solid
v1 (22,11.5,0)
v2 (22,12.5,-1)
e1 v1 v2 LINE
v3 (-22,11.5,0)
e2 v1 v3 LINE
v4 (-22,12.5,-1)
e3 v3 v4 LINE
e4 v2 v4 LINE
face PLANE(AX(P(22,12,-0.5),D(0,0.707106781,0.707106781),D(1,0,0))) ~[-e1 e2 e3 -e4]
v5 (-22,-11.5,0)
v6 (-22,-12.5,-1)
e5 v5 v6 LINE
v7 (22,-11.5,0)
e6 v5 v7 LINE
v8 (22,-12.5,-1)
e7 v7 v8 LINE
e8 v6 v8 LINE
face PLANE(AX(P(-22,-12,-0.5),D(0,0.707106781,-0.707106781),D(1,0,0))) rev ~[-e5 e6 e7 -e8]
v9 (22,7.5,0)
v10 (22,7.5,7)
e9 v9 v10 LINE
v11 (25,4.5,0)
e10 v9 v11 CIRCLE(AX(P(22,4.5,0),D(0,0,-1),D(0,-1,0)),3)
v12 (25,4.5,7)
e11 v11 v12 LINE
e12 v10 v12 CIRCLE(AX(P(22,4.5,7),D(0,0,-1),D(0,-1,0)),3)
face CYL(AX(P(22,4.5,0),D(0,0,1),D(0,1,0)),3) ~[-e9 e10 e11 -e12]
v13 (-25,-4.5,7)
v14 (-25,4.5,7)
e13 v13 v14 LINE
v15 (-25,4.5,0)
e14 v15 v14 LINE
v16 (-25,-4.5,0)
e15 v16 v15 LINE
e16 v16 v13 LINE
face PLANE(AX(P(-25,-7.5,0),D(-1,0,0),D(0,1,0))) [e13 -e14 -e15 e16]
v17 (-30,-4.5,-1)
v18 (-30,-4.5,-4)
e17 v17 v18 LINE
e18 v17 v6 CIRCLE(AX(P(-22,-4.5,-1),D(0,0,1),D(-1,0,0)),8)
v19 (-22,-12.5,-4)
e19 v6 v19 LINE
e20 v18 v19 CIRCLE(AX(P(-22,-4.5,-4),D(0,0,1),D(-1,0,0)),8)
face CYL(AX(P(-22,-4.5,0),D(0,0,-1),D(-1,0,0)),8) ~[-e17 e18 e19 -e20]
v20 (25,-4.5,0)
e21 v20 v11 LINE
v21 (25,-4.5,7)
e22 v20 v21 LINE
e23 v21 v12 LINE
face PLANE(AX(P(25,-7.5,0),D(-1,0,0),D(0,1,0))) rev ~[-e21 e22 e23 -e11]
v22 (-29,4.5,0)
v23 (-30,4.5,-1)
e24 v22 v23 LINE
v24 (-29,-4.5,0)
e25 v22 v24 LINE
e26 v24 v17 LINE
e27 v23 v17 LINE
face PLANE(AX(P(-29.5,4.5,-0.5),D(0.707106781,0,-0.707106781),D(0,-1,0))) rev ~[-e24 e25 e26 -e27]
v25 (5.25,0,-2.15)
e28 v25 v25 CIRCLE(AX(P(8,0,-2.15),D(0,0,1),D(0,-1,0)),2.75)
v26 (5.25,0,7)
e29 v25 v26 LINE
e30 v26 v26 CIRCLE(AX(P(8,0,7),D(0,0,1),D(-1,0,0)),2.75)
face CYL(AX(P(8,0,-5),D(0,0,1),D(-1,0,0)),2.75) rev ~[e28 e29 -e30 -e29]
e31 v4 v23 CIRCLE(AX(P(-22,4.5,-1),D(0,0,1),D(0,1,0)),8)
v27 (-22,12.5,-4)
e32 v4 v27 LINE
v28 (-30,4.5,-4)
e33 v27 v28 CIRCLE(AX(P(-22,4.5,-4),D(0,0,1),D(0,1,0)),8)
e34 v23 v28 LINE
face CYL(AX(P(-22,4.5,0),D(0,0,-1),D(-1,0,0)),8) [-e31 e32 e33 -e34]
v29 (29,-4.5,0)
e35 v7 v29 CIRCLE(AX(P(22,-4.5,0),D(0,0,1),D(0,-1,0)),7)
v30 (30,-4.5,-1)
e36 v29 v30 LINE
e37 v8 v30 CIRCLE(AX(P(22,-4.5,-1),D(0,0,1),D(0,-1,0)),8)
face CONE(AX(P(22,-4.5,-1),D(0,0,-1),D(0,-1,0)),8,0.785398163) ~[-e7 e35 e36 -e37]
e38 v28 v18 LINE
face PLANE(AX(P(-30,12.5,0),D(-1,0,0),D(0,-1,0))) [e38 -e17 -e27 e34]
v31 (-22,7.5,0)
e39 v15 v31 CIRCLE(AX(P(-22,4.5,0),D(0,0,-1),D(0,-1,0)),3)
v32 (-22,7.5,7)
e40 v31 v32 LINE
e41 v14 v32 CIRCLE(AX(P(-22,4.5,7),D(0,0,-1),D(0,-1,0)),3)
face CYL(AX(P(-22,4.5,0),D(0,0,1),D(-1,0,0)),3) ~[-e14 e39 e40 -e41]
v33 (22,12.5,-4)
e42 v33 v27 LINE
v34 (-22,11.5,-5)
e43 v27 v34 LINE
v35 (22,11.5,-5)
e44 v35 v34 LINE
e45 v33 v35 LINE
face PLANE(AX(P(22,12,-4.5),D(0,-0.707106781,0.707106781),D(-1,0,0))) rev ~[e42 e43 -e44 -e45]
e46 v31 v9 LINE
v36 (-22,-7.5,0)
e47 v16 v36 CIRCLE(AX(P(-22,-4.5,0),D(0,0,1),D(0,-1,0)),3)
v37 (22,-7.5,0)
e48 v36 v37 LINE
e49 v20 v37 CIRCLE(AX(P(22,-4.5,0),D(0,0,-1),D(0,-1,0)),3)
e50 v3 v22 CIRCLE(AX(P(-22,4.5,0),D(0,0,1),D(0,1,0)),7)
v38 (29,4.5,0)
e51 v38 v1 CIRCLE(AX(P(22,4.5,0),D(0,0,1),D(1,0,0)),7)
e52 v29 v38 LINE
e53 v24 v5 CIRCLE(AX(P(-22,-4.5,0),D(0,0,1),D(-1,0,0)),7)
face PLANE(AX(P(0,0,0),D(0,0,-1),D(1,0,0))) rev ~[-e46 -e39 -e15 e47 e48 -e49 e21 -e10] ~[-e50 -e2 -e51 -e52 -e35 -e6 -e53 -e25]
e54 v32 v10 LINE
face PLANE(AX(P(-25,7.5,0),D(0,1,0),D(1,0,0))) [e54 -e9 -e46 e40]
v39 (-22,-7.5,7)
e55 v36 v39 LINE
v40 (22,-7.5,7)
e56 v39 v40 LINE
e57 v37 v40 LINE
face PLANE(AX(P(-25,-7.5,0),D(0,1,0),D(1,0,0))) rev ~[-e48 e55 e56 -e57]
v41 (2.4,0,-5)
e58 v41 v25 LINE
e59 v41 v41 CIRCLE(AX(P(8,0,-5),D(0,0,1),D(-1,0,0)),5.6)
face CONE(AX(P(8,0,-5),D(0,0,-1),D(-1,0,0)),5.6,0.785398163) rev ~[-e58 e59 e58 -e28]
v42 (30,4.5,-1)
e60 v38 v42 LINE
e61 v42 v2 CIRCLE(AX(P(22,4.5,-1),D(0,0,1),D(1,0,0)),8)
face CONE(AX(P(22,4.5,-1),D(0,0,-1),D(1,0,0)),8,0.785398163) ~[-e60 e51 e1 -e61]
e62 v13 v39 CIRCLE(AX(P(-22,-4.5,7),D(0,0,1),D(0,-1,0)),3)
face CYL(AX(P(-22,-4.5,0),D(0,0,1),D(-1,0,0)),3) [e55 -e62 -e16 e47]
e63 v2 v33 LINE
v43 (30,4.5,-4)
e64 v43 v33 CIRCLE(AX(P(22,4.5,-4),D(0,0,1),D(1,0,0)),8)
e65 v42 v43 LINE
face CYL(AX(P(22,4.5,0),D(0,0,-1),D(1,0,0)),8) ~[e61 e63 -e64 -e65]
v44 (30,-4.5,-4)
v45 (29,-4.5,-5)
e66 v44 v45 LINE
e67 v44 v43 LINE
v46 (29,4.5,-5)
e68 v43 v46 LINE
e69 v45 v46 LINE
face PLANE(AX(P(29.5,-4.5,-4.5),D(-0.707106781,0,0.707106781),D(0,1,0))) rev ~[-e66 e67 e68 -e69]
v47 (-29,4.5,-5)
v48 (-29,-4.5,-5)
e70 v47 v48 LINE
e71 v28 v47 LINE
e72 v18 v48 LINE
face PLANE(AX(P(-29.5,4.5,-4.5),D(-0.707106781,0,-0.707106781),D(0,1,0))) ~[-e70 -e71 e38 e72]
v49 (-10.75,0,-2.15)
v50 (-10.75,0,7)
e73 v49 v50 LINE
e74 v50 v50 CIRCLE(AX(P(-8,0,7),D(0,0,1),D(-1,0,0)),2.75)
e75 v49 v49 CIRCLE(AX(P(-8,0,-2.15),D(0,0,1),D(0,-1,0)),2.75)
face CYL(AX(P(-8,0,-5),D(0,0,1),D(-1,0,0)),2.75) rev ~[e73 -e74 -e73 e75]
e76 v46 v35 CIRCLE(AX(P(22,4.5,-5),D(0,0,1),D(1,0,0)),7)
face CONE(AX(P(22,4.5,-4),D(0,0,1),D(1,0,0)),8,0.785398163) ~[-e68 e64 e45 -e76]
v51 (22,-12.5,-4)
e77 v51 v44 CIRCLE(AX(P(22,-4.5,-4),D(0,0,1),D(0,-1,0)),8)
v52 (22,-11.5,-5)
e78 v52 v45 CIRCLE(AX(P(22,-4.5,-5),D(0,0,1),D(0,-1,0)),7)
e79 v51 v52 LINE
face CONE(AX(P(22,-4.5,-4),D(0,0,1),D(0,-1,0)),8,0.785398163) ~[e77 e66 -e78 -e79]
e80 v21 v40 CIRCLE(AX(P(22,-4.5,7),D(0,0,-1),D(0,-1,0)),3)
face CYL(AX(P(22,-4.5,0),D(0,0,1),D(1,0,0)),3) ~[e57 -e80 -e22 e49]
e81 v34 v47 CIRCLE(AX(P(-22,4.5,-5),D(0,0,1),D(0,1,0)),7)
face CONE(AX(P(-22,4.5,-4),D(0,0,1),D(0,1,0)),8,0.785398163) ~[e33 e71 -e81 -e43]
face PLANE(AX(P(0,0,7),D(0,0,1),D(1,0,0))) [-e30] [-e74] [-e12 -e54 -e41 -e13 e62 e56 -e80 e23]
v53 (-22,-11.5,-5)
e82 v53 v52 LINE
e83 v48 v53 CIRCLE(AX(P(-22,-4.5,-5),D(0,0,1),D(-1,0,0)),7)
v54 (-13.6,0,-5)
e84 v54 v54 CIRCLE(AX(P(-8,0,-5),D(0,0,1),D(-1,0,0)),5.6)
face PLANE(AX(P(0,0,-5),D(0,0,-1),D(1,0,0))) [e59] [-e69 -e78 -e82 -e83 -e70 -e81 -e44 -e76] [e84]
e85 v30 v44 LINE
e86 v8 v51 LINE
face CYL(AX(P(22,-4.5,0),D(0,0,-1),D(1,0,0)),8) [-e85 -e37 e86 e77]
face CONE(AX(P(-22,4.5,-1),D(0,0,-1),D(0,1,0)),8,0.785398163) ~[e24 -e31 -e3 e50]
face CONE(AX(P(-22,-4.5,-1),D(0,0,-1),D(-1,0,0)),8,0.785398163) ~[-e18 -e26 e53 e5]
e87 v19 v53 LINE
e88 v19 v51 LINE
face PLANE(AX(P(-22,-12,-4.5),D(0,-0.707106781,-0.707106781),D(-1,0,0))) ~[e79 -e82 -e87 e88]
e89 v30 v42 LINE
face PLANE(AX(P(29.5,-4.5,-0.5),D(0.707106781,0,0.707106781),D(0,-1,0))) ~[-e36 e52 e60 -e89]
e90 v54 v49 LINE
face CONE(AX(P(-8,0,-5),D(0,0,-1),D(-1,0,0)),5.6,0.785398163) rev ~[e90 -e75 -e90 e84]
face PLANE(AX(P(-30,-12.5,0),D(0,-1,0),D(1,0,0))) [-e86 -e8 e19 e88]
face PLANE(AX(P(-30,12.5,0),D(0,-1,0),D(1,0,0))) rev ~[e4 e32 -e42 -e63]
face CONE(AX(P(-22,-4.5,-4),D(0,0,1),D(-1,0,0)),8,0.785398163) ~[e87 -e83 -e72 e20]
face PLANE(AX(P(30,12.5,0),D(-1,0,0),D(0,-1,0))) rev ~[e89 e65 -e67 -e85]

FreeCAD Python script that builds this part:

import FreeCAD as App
import Part
import Sketcher

V = App.Vector
Q = App.Units.Quantity


def edges_at(feature, points):
    """Names of the edges that pass closest to the given points."""
    edges = feature.Shape.Edges
    near = lambda p: min(range(len(edges)), key=lambda i: edges[i].distToShape(Part.Vertex(*p))[0])
    return sorted({f"Edge{near(p) + 1}" for p in points})


def add_polygon(sketch, points):
    """Adds a closed chain of lines whose ends are joined by coincident constraints."""
    first, n = sketch.GeometryCount, len(points)
    for a, b in zip(points, points[1:] + points[:1]):
        sketch.addGeometry(Part.LineSegment(App.Vector(*a, 0), App.Vector(*b, 0)), False)
    for i in range(n):
        sketch.addConstraint(Sketcher.Constraint("Coincident", first + i, 2, first + (i + 1) % n, 1))

doc = App.newDocument("Part")
params = doc.addObject("Spreadsheet::Sheet", "Params")
for row, (alias, value) in enumerate([
    ("sketch1_width", "50 mm"),
    ("sketch1_height", "15 mm"),
    ("pad1_length", "7 mm"),
    ("sketch2_width", "60 mm"),
    ("sketch2_height", "25 mm"),
    ("pad2_length", "5 mm"),
    ("sketch3_diameter", "5.5 mm"),
    ("hole_diameter", "5.5 mm"),
    ("hole_csink_diameter", "11.2 mm"),
    ("fillet_radius", "8 mm"),
    ("fillet2_radius", "3 mm"),
    ("chamfer_size", "1 mm"),
], start=1):
    params.set(f"A{row}", alias)
    params.set(f"B{row}", "=" + value)
    params.setAlias(f"B{row}", alias)

body = doc.addObject("PartDesign::Body", "Body")

# Sketch on XY plane
sketch1 = doc.addObject("Sketcher::SketchObject", "Sketch")
body.addObject(sketch1)
sketch1.AttachmentSupport = (doc.XY_Plane, [""])
sketch1.MapMode = "FlatFace"
add_polygon(sketch1, [(-25, 7.5), (-25, -7.5), (25, -7.5), (25, 7.5)])  # lines 0-3
sketch1.addConstraint(Sketcher.Constraint("Vertical", 0))
sketch1.addConstraint(Sketcher.Constraint("Horizontal", 1))
sketch1.addConstraint(Sketcher.Constraint("Vertical", 2))
sketch1.addConstraint(Sketcher.Constraint("Horizontal", 3))
sketch1.addConstraint(Sketcher.Constraint("Symmetric", 0, 2, 2, 2, -1, 1))
sketch1.addConstraint(Sketcher.Constraint("DistanceX", 1, 1, 1, 2, Q("50 mm")))
sketch1.addConstraint(Sketcher.Constraint("DistanceY", 0, 2, 0, 1, Q("15 mm")))
sketch1.setExpression("Constraints[9]", "Params.sketch1_width")
sketch1.setExpression("Constraints[10]", "Params.sketch1_height")
pad1 = doc.addObject("PartDesign::Pad", "Pad")
body.addObject(pad1)
pad1.Profile = sketch1
pad1.setExpression("Length", "Params.pad1_length")

# Sketch on XY plane
sketch2 = doc.addObject("Sketcher::SketchObject", "Sketch001")
body.addObject(sketch2)
sketch2.AttachmentSupport = (doc.XY_Plane, [""])
sketch2.MapMode = "FlatFace"
add_polygon(sketch2, [(-30, -12.5), (-30, 12.5), (30, 12.5), (30, -12.5)])  # lines 0-3
sketch2.addConstraint(Sketcher.Constraint("Vertical", 0))
sketch2.addConstraint(Sketcher.Constraint("Horizontal", 1))
sketch2.addConstraint(Sketcher.Constraint("Vertical", 2))
sketch2.addConstraint(Sketcher.Constraint("Horizontal", 3))
sketch2.addConstraint(Sketcher.Constraint("Symmetric", 0, 2, 2, 2, -1, 1))
sketch2.addConstraint(Sketcher.Constraint("DistanceX", 1, 1, 1, 2, Q("60 mm")))
sketch2.addConstraint(Sketcher.Constraint("DistanceY", 0, 1, 0, 2, Q("25 mm")))
sketch2.setExpression("Constraints[9]", "Params.sketch2_width")
sketch2.setExpression("Constraints[10]", "Params.sketch2_height")
pad2 = doc.addObject("PartDesign::Pad", "Pad001")
body.addObject(pad2)
pad2.Profile = sketch2
pad2.setExpression("Length", "Params.pad2_length")
pad2.Reversed = True

# Sketch on XY plane
sketch3 = doc.addObject("Sketcher::SketchObject", "Sketch002")
body.addObject(sketch3)
sketch3.AttachmentSupport = (doc.XY_Plane, [""])
sketch3.MapMode = "FlatFace"
sketch3.AttachmentOffset = App.Placement(V(0, 0, -5), App.Rotation())
sketch3.addGeometry(Part.Circle(V(-8, 0, 0), V(0, 0, 1), 2.75), False)
sketch3.addGeometry(Part.Circle(V(8, 0, 0), V(0, 0, 1), 2.75), False)
sketch3.addConstraint(Sketcher.Constraint("Equal", 0, 1))
sketch3.addConstraint(Sketcher.Constraint("Symmetric", 0, 3, 1, 3, -1, 1))
sketch3.addConstraint(Sketcher.Constraint("PointOnObject", 0, 3, -1))
sketch3.addConstraint(Sketcher.Constraint("Diameter", 0, Q("5.5 mm")))
sketch3.addConstraint(Sketcher.Constraint("DistanceX", 0, 3, -1, 1, Q("8 mm")))
sketch3.setExpression("Constraints[3]", "Params.sketch3_diameter")
doc.recompute()
hole = doc.addObject("PartDesign::Hole", "Hole")
body.addObject(hole)
hole.Profile = sketch3
hole.ThreadType = "None"
hole.setExpression("Diameter", "Params.hole_diameter")
hole.DepthType = "ThroughAll"
hole.HoleCutType = "Countersink"
hole.setExpression("HoleCutDiameter", "Params.hole_csink_diameter")
hole.HoleCutCountersinkAngle = 90
hole.Reversed = True
doc.recompute()

fillet = doc.addObject("PartDesign::Fillet", "Fillet")
body.addObject(fillet)
fillet.Base = (hole, edges_at(hole, [
    (-30, -12.5, -2.5),
    (-30, 12.5, -2.5),
    (30, -12.5, -2.5),
    (30, 12.5, -2.5),
]))
fillet.setExpression("Radius", "Params.fillet_radius")
doc.recompute()

fillet2 = doc.addObject("PartDesign::Fillet", "Fillet001")
body.addObject(fillet2)
fillet2.Base = (fillet, edges_at(fillet, [
    (25, -7.5, 3.5),
    (25, 7.5, 3.5),
    (-25, 7.5, 3.5),
    (-25, -7.5, 3.5),
]))
fillet2.setExpression("Radius", "Params.fillet2_radius")
doc.recompute()

chamfer = doc.addObject("PartDesign::Chamfer", "Chamfer")
body.addObject(chamfer)
chamfer.Base = (fillet2, edges_at(fillet2, [
    (0, -12.5, -5),
    (30, 0, -5),
    (0, 12.5, -5),
    (-30, 0, -5),
    (-30, 0, 0),
    (0, 12.5, 0),
    (30, 0, 0),
    (0, -12.5, 0),
]))
chamfer.setExpression("Size", "Params.chamfer_size")

doc.recompute()
